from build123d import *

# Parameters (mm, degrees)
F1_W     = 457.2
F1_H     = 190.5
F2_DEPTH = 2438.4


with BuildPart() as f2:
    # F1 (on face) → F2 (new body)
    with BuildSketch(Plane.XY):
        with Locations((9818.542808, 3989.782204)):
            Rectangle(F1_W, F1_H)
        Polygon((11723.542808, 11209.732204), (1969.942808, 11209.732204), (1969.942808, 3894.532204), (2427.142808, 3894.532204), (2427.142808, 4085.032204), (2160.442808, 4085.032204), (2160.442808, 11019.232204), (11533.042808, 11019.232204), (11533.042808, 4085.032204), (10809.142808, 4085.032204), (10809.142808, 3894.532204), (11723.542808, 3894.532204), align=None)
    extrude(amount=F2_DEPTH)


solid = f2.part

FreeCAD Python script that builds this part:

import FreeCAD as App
import Part
import Sketcher
Q = App.Units.Quantity


def add_polygon(sketch, points):
    """Adds a closed chain of lines whose ends are joined by coincident constraints."""
    first, n = sketch.GeometryCount, len(points)
    for a, b in zip(points, points[1:] + points[:1]):
        sketch.addGeometry(Part.LineSegment(App.Vector(*a, 0), App.Vector(*b, 0)), False)
    for i in range(n):
        sketch.addConstraint(Sketcher.Constraint("Coincident", first + i, 2, first + (i + 1) % n, 1))

doc = App.newDocument("Part")
body = doc.addObject("PartDesign::Body", "Body")
body.AllowCompound = True

# Sketch on XY plane
sketch1 = body.newObject("Sketcher::SketchObject", "Sketch")
sketch1.AttachmentSupport = (doc.getObject("XY_Plane"), [""])
sketch1.MapMode = "FlatFace"
add_polygon(sketch1, [(9589.942808, 4085.032204), (9589.942808, 3894.532204), (10047.142808, 3894.532204), (10047.142808, 4085.032204)])  # lines 0-3
add_polygon(sketch1, [(11723.542808, 11209.732204), (1969.942808, 11209.732204), (1969.942808, 3894.532204), (2427.142808, 3894.532204), (2427.142808, 4085.032204), (2160.442808, 4085.032204), (2160.442808, 11019.232204), (11533.042808, 11019.232204), (11533.042808, 4085.032204), (10809.142808, 4085.032204), (10809.142808, 3894.532204), (11723.542808, 3894.532204)])  # lines 4-15
sketch1.addConstraint(Sketcher.Constraint("Vertical", 0))
sketch1.addConstraint(Sketcher.Constraint("Horizontal", 1))
sketch1.addConstraint(Sketcher.Constraint("Vertical", 2))
sketch1.addConstraint(Sketcher.Constraint("Horizontal", 3))
sketch1.addConstraint(Sketcher.Constraint("Horizontal", 4))
sketch1.addConstraint(Sketcher.Constraint("Vertical", 5))
sketch1.addConstraint(Sketcher.Constraint("Horizontal", 6))
sketch1.addConstraint(Sketcher.Constraint("Vertical", 7))
sketch1.addConstraint(Sketcher.Constraint("Horizontal", 8))
sketch1.addConstraint(Sketcher.Constraint("Vertical", 9))
sketch1.addConstraint(Sketcher.Constraint("Horizontal", 10))
sketch1.addConstraint(Sketcher.Constraint("Vertical", 11))
sketch1.addConstraint(Sketcher.Constraint("Horizontal", 12))
sketch1.addConstraint(Sketcher.Constraint("Vertical", 13))
sketch1.addConstraint(Sketcher.Constraint("Horizontal", 14))
sketch1.addConstraint(Sketcher.Constraint("Vertical", 15))
sketch1.addConstraint(Sketcher.Constraint("Horizontal", 1, 2, 5, 2))
sketch1.addConstraint(Sketcher.Constraint("Horizontal", 3, 2, 7, 2))
sketch1.addConstraint(Sketcher.Constraint("Horizontal", 8, 2, 11, 2))
sketch1.addConstraint(Sketcher.Constraint("Horizontal", 6, 2, 13, 2))
sketch1.addConstraint(Sketcher.Constraint("Equal", 3, 6))
sketch1.addConstraint(Sketcher.Constraint("DistanceX", 1, 1, 1, 2, Q("18 in")))
sketch1.addConstraint(Sketcher.Constraint("DistanceX", 4, 2, 4, 1, Q("384 in")))
sketch1.addConstraint(Sketcher.Constraint("DistanceX", 10, 1, 10, 2, Q("369 in")))
sketch1.addConstraint(Sketcher.Constraint("DistanceX", 14, 1, 14, 2, Q("36 in")))
sketch1.addConstraint(Sketcher.Constraint("DistanceY", 5, 2, 5, 1, Q("288 in")))
sketch1.addConstraint(Sketcher.Constraint("DistanceY", 9, 1, 9, 2, Q("273 in")))
sketch1.addConstraint(Sketcher.Constraint("DistanceX", 8, 2, 8, 1, Q("10.5 in")))
sketch1.addConstraint(Sketcher.Constraint("DistanceY", 0, 2, 0, 1, Q("7.5 in")))
sketch1.addConstraint(Sketcher.Constraint("DistanceX", 4, 2, 3, 2, Q("300 in")))
sketch1.addConstraint(Sketcher.Constraint("DistanceX", -1, 1, 1, 2, Q("10047.142808 mm")))
sketch1.addConstraint(Sketcher.Constraint("DistanceY", -1, 1, 0, 2, Q("3894.532204 mm")))
pad1 = body.newObject("PartDesign::Pad", "Pad")
pad1.Profile = sketch1
pad1.Length = Q("96 in")

doc.recompute()
